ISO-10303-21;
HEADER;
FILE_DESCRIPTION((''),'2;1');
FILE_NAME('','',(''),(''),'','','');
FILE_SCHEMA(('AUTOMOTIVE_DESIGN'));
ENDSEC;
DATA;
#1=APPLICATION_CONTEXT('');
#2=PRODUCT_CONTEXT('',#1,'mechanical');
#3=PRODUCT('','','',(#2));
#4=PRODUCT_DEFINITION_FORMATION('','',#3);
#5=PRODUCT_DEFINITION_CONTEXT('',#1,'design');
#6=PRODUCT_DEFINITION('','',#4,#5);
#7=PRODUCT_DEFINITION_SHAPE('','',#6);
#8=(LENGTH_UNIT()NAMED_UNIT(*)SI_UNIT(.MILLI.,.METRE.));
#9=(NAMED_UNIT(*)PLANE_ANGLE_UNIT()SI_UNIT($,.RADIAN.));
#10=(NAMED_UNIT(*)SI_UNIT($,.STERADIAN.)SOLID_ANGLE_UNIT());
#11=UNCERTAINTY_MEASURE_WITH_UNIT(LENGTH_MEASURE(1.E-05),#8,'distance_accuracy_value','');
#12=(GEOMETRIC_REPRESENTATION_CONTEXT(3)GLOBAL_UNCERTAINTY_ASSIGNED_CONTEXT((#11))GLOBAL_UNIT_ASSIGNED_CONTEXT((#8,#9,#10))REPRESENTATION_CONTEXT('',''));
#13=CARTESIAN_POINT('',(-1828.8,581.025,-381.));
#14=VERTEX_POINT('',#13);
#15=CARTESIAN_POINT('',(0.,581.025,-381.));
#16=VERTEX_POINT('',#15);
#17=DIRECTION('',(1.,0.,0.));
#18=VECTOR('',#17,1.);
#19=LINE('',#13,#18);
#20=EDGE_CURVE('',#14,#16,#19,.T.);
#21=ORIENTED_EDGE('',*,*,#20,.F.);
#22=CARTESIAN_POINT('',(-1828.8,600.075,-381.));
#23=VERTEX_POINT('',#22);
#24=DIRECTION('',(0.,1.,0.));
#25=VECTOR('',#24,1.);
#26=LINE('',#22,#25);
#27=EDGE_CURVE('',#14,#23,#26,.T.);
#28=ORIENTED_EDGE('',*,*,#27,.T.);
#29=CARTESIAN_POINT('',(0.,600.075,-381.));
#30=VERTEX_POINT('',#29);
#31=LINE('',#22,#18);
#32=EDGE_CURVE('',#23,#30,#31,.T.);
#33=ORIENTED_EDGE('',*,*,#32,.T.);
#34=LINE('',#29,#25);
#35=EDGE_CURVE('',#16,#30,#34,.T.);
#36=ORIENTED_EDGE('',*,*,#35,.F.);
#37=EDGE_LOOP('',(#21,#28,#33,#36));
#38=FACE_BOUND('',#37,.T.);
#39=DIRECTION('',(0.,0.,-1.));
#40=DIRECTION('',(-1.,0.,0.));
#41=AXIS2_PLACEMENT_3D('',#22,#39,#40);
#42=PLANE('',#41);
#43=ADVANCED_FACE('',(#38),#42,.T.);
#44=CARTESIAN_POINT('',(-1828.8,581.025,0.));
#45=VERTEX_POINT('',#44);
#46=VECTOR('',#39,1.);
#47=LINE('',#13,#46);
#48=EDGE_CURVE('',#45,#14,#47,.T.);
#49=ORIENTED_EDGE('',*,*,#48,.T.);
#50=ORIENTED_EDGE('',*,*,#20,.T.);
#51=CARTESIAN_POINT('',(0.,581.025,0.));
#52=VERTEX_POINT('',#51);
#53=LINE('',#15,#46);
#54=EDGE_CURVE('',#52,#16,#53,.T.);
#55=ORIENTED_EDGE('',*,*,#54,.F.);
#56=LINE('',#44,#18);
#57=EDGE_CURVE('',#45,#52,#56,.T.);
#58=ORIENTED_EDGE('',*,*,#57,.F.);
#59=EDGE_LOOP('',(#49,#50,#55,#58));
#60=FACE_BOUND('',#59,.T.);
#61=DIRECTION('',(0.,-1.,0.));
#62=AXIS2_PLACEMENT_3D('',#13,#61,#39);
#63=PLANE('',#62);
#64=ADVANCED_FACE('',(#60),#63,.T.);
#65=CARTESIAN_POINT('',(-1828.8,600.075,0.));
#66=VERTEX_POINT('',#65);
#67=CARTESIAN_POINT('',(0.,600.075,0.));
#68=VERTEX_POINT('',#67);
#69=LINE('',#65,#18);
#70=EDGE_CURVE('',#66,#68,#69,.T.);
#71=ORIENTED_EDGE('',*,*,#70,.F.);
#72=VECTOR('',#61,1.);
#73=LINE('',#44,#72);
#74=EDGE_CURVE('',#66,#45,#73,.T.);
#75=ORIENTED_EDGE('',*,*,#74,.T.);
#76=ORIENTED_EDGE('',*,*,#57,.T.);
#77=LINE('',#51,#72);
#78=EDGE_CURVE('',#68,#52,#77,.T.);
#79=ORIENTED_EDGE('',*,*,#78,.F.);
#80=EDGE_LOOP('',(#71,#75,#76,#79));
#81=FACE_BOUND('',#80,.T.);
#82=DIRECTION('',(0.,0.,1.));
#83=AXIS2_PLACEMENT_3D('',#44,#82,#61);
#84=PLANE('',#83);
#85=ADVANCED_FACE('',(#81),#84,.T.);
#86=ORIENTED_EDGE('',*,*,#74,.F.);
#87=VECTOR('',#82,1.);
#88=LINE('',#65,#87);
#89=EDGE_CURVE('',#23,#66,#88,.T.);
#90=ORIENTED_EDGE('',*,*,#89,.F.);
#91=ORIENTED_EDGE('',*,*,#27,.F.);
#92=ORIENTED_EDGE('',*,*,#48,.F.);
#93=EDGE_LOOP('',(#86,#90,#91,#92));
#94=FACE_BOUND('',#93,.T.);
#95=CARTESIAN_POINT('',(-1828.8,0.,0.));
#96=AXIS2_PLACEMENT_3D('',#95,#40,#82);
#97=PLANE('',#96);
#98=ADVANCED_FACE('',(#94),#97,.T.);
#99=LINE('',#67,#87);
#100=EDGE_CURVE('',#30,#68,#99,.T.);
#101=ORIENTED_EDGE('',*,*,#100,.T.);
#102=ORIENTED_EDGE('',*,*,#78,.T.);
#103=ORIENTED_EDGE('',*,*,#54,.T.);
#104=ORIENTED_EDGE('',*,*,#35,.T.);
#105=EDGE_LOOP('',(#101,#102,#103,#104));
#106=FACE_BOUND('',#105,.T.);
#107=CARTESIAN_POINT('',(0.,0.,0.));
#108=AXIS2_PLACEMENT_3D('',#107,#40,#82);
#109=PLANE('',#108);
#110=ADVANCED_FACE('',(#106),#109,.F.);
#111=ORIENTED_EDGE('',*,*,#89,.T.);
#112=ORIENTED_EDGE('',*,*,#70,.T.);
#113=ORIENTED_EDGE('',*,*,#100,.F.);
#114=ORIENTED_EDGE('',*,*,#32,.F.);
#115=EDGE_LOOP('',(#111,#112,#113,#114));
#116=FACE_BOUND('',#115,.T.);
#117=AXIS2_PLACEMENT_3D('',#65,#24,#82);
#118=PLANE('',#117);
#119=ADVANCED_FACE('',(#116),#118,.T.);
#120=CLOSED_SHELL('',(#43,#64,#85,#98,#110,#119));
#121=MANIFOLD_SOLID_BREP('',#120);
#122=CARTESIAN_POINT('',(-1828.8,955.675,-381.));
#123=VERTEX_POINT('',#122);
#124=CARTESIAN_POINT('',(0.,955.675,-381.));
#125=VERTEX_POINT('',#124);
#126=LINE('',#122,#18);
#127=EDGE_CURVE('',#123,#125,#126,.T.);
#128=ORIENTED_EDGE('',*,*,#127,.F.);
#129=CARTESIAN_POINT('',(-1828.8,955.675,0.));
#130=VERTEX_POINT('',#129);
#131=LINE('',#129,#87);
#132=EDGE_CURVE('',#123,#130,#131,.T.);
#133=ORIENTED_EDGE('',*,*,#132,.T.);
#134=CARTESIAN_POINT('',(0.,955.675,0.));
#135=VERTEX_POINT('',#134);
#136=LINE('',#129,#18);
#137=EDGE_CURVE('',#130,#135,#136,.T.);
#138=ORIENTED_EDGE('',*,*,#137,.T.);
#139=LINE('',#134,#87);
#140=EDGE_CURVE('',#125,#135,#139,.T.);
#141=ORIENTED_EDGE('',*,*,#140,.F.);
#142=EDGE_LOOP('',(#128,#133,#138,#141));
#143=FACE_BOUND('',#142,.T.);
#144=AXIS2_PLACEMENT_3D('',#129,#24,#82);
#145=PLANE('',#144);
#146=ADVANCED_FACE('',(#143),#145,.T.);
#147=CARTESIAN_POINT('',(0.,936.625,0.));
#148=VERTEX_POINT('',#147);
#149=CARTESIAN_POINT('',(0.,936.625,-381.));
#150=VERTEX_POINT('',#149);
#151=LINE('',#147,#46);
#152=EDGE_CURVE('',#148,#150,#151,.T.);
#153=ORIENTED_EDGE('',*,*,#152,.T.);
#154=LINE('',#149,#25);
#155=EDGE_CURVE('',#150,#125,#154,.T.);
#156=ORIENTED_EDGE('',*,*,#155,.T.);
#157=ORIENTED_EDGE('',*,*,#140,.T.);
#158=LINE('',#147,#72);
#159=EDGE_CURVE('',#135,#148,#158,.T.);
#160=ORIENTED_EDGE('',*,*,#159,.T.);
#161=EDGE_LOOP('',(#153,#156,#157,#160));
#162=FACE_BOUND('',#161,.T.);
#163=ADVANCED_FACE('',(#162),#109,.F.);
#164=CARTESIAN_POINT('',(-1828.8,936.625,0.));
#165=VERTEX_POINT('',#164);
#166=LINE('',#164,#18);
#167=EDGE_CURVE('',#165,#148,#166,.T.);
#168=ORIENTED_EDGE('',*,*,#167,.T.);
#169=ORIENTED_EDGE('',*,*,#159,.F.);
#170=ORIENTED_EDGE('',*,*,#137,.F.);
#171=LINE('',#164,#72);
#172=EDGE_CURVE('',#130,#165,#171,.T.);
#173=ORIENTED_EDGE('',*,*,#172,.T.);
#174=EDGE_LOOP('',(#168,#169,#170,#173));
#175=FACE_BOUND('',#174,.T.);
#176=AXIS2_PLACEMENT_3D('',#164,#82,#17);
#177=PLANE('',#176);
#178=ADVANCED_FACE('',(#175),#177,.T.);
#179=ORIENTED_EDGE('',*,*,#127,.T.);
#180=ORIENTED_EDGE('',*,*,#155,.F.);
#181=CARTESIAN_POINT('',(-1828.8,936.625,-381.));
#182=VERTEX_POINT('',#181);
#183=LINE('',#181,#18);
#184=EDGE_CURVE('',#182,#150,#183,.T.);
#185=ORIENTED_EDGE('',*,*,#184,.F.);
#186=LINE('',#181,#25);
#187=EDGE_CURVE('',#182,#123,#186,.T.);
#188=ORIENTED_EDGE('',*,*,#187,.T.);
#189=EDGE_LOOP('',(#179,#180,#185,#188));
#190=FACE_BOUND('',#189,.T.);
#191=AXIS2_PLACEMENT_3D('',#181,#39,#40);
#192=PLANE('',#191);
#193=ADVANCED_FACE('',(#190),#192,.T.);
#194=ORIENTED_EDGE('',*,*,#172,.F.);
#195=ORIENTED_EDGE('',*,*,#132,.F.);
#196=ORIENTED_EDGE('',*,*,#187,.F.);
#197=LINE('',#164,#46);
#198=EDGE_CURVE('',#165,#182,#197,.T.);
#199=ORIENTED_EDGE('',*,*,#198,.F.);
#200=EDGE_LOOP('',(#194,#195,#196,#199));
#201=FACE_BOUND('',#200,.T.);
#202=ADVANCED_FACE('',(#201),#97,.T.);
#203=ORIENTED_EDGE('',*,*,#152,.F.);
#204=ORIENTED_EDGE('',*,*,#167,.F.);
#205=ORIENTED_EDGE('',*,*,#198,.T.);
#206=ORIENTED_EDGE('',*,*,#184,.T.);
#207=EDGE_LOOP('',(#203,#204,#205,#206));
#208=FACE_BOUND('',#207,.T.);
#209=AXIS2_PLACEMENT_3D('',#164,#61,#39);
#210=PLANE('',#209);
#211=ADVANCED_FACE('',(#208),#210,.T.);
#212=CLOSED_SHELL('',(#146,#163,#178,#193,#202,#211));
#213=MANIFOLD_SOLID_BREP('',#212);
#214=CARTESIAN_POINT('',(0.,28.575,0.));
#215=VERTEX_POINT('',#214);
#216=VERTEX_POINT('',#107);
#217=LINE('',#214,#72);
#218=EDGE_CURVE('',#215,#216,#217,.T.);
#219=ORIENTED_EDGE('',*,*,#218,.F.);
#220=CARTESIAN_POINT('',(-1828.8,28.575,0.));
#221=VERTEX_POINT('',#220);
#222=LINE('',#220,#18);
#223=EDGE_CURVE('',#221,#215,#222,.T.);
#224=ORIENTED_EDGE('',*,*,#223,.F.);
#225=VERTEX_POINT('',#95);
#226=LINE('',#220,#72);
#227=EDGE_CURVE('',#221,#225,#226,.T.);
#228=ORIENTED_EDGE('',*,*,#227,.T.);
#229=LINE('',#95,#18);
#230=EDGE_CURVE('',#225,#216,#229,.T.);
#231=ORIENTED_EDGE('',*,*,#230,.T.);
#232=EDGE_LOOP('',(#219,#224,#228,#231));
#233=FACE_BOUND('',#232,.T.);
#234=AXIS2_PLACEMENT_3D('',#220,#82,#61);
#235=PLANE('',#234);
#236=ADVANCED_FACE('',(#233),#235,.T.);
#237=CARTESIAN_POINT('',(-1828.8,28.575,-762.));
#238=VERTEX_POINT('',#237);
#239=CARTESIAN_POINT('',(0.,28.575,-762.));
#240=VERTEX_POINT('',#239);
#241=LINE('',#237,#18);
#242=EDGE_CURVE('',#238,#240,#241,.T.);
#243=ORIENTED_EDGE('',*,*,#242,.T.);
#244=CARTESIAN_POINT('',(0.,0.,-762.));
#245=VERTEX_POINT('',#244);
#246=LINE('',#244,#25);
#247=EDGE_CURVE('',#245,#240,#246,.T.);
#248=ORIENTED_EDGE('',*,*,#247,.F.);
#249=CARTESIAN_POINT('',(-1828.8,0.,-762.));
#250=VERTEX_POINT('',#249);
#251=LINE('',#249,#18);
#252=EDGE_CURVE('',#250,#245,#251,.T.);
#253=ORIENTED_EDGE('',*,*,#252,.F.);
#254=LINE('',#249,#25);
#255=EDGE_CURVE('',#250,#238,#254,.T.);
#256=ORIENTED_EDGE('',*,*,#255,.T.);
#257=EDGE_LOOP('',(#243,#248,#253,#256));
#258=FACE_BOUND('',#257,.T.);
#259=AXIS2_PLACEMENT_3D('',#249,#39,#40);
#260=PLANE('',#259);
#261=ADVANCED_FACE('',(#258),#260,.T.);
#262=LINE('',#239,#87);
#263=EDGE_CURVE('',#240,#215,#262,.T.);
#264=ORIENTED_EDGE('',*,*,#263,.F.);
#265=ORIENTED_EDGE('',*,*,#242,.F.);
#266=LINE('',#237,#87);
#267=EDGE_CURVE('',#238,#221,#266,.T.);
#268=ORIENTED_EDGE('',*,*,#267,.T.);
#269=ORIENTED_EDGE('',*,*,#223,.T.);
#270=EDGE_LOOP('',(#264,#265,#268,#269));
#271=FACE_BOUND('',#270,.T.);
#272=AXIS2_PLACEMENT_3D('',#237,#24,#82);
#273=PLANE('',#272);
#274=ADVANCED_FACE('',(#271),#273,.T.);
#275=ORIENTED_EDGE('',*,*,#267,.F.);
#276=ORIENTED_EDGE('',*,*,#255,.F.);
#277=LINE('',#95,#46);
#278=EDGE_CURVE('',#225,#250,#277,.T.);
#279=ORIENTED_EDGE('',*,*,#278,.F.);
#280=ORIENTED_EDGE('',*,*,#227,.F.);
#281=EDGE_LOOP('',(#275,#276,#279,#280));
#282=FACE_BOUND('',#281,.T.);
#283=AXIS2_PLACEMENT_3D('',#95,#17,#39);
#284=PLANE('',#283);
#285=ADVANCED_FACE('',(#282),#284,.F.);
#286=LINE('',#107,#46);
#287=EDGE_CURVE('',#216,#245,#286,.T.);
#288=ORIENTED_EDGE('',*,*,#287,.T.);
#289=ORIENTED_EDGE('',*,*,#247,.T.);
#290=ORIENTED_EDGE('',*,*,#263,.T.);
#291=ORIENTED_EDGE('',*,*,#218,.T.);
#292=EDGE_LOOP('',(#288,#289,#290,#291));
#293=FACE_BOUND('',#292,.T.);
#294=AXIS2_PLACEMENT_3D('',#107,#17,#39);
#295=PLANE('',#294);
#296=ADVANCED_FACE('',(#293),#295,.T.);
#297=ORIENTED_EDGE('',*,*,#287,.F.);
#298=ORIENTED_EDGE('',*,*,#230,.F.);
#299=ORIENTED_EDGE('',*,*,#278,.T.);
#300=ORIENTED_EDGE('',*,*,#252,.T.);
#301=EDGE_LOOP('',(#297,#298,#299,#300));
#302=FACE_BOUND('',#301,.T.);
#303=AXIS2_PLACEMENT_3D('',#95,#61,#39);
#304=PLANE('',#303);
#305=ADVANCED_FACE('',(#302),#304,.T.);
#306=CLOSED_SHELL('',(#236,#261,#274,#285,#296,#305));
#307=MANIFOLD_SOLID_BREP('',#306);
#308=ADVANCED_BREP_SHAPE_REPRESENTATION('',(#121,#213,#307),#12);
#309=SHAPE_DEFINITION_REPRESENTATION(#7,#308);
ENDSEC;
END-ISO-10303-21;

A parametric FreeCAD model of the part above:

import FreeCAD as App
import Part
import Sketcher
Q = App.Units.Quantity


def add_polygon(sketch, points):
    """Adds a closed chain of lines whose ends are joined by coincident constraints."""
    first, n = sketch.GeometryCount, len(points)
    for a, b in zip(points, points[1:] + points[:1]):
        sketch.addGeometry(Part.LineSegment(App.Vector(*a, 0), App.Vector(*b, 0)), False)
    for i in range(n):
        sketch.addConstraint(Sketcher.Constraint("Coincident", first + i, 2, first + (i + 1) % n, 1))

doc = App.newDocument("Part")
body = doc.addObject("PartDesign::Body", "Body")

# Sketch on YZ plane
sketch1 = doc.addObject("Sketcher::SketchObject", "Sketch")
body.addObject(sketch1)
sketch1.AttachmentSupport = (doc.YZ_Plane, [""])
sketch1.MapMode = "FlatFace"
add_polygon(sketch1, [(28.575, 0), (0, 0), (0, -762), (28.575, -762)])  # lines 0-3
sketch1.addConstraint([
    Sketcher.Constraint("Horizontal", 0),
    Sketcher.Constraint("Vertical", 1),
    Sketcher.Constraint("Horizontal", 2),
    Sketcher.Constraint("Vertical", 3),
    Sketcher.Constraint("Coincident", 0, 2, -1, 1),
    Sketcher.Constraint("DistanceY", 1, 2, 1, 1, Q("30 in")),
    Sketcher.Constraint("DistanceX", 0, 2, 0, 1, Q("1.125 in")),
])
pad1 = doc.addObject("PartDesign::Pad", "Pad")
body.addObject(pad1)
pad1.Profile = sketch1
pad1.Length = Q("72 in")
pad1.Reversed = True
body2 = doc.addObject("PartDesign::Body", "Body001")

# Sketch on YZ plane
sketch2 = doc.addObject("Sketcher::SketchObject", "Sketch001")
body2.addObject(sketch2)
sketch2.AttachmentSupport = (doc.getObject("YZ_Plane001"), [""])
sketch2.MapMode = "FlatFace"
add_polygon(sketch2, [(600.075, 0), (581.025, 0), (581.025, -381), (600.075, -381)])  # lines 0-3
sketch2.addConstraint([
    Sketcher.Constraint("Horizontal", 0),
    Sketcher.Constraint("Vertical", 1),
    Sketcher.Constraint("Horizontal", 2),
    Sketcher.Constraint("Vertical", 3),
    Sketcher.Constraint("PointOnObject", 0, 2, -1),
    Sketcher.Constraint("DistanceY", 1, 2, 1, 1, Q("15 in")),
    Sketcher.Constraint("DistanceX", 0, 2, 0, 1, Q("0.75 in")),
    Sketcher.Constraint("DistanceX", -1, 1, 0, 2, Q("22.875 in")),
])
pad2 = doc.addObject("PartDesign::Pad", "Pad001")
body2.addObject(pad2)
pad2.Profile = sketch2
pad2.Length = Q("72 in")
pad2.Reversed = True
body3 = doc.addObject("PartDesign::Body", "Body002")

# Sketch on YZ plane
sketch3 = doc.addObject("Sketcher::SketchObject", "Sketch002")
body3.addObject(sketch3)
sketch3.AttachmentSupport = (doc.getObject("YZ_Plane002"), [""])
sketch3.MapMode = "FlatFace"
add_polygon(sketch3, [(955.675, 0), (936.625, 0), (936.625, -381), (955.675, -381)])  # lines 0-3
sketch3.addConstraint([
    Sketcher.Constraint("Horizontal", 0),
    Sketcher.Constraint("Vertical", 1),
    Sketcher.Constraint("Horizontal", 2),
    Sketcher.Constraint("Vertical", 3),
    Sketcher.Constraint("PointOnObject", 0, 2, -1),
    Sketcher.Constraint("DistanceY", 1, 2, 1, 1, Q("15 in")),
    Sketcher.Constraint("DistanceX", 0, 2, 0, 1, Q("0.75 in")),
    Sketcher.Constraint("DistanceX", -1, 1, 0, 2, Q("36.875 in")),
])
pad3 = doc.addObject("PartDesign::Pad", "Pad002")
body3.addObject(pad3)
pad3.Profile = sketch3
pad3.Length = Q("72 in")
pad3.Reversed = True

doc.recompute()
